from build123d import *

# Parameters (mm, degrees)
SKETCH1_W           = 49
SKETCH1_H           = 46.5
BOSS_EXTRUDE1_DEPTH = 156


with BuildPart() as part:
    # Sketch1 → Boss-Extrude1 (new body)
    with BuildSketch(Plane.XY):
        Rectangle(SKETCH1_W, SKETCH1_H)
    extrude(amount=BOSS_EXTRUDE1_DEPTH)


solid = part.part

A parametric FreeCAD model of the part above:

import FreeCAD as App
import Part
import Sketcher
Q = App.Units.Quantity


def add_polygon(sketch, points):
    """Adds a closed chain of lines whose ends are joined by coincident constraints."""
    first, n = sketch.GeometryCount, len(points)
    for a, b in zip(points, points[1:] + points[:1]):
        sketch.addGeometry(Part.LineSegment(App.Vector(*a, 0), App.Vector(*b, 0)), False)
    for i in range(n):
        sketch.addConstraint(Sketcher.Constraint("Coincident", first + i, 2, first + (i + 1) % n, 1))

doc = App.newDocument("Part")
params = doc.addObject("Spreadsheet::Sheet", "Params")
for row, (alias, value) in enumerate([
    ("sketch1_width", "49 mm"),
    ("sketch1_height", "46.5 mm"),
    ("pad1_length", "156 mm"),
], start=1):
    params.set(f"A{row}", alias)
    params.set(f"B{row}", "=" + value)
    params.setAlias(f"B{row}", alias)

body = doc.addObject("PartDesign::Body", "Body")

# Sketch on XY plane
sketch1 = doc.addObject("Sketcher::SketchObject", "Sketch")
body.addObject(sketch1)
sketch1.AttachmentSupport = (doc.XY_Plane, [""])
sketch1.MapMode = "FlatFace"
add_polygon(sketch1, [(-24, 23), (-24, -23), (24, -23), (24, 23)])  # lines 0-3
sketch1.addConstraint([
    Sketcher.Constraint("Vertical", 0),
    Sketcher.Constraint("Horizontal", 1),
    Sketcher.Constraint("Vertical", 2),
    Sketcher.Constraint("Horizontal", 3),
    Sketcher.Constraint("Symmetric", 0, 2, 2, 2, -1, 1),
    Sketcher.Constraint("DistanceX", 1, 1, 1, 2, Q("49 mm")),
    Sketcher.Constraint("DistanceY", 0, 2, 0, 1, Q("46.5 mm")),
])
sketch1.setExpression("Constraints[9]", "Params.sketch1_width")
sketch1.setExpression("Constraints[10]", "Params.sketch1_height")
pad1 = doc.addObject("PartDesign::Pad", "Pad")
body.addObject(pad1)
pad1.Profile = sketch1
pad1.setExpression("Length", "Params.pad1_length")

doc.recompute()
